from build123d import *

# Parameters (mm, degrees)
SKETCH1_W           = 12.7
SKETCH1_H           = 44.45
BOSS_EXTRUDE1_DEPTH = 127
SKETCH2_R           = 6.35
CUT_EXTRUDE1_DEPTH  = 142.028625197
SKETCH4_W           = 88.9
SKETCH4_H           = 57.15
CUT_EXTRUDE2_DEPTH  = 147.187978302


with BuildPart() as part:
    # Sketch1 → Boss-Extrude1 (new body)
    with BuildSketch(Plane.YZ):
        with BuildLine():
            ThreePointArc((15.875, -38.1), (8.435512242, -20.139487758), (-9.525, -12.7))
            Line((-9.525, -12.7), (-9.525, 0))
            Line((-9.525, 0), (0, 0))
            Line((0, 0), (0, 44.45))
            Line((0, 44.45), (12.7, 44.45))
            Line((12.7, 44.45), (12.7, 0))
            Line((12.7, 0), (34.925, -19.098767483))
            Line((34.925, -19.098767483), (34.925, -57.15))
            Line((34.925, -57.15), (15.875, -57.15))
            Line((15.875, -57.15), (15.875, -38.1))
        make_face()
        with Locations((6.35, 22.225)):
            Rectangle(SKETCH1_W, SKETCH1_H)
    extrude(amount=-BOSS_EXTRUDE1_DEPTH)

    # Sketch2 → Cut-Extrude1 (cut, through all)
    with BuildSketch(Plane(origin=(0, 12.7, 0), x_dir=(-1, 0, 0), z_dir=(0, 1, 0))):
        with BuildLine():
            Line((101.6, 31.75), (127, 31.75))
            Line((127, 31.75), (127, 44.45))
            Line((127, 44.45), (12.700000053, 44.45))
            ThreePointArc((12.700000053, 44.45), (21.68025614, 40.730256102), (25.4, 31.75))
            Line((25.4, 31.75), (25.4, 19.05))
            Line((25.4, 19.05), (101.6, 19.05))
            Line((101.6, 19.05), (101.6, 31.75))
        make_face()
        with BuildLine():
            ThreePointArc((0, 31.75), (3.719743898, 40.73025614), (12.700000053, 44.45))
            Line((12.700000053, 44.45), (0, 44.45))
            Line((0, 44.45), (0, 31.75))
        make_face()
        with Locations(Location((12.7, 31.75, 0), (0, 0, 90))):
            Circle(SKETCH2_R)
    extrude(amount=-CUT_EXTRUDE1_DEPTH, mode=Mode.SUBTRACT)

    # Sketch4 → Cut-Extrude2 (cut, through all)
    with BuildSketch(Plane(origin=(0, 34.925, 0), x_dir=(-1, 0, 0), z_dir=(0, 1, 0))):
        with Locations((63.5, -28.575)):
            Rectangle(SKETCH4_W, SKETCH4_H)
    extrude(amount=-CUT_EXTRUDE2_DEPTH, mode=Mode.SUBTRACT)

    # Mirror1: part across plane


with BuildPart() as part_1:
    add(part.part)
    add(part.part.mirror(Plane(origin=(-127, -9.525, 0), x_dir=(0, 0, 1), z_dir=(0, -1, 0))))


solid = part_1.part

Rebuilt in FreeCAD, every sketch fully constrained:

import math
import FreeCAD as App
import Part
import Sketcher
Q = App.Units.Quantity


def add_polygon(sketch, points):
    """Adds a closed chain of lines whose ends are joined by coincident constraints."""
    first, n = sketch.GeometryCount, len(points)
    for a, b in zip(points, points[1:] + points[:1]):
        sketch.addGeometry(Part.LineSegment(App.Vector(*a, 0), App.Vector(*b, 0)), False)
    for i in range(n):
        sketch.addConstraint(Sketcher.Constraint("Coincident", first + i, 2, first + (i + 1) % n, 1))

doc = App.newDocument("Part")
body = doc.addObject("PartDesign::Body", "Body")

sketch1 = body.newObject("Sketcher::SketchObject", "Sketch")
sketch1.AttachmentSupport = (doc.getObject("YZ_Plane"), [""])
sketch1.MapMode = "FlatFace"
sketch1.addGeometry([
    Part.LineSegment(App.Vector(15.875, -38.1, 0), App.Vector(15.875, -57.15, 0)),
    Part.LineSegment(App.Vector(15.875, -57.15, 0), App.Vector(34.925, -57.15, 0)),
    Part.LineSegment(App.Vector(34.925, -57.15, 0), App.Vector(34.925, -19.098767, 0)),
    Part.LineSegment(App.Vector(34.925, -19.098767, 0), App.Vector(12.7, 0, 0)),
    Part.LineSegment(App.Vector(12.7, 0, 0), App.Vector(12.7, 44.45, 0)),
    Part.LineSegment(App.Vector(12.7, 44.45, 0), App.Vector(0, 44.45, 0)),
    Part.LineSegment(App.Vector(0, 44.45, 0), App.Vector(0, 0, 0)),
    Part.LineSegment(App.Vector(0, 0, 0), App.Vector(-9.525, 0, 0)),
    Part.LineSegment(App.Vector(-9.525, 0, 0), App.Vector(-9.525, -12.7, 0)),
    Part.ArcOfCircle(Part.Circle(App.Vector(-9.525, -38.1, 0), App.Vector(0, 0, 1), 25.4), math.radians(0), math.radians(90)),
], False)
sketch1.addConstraint([
    Sketcher.Constraint("Coincident", 0, 2, 1, 1),
    Sketcher.Constraint("Coincident", 1, 2, 2, 1),
    Sketcher.Constraint("Coincident", 2, 2, 3, 1),
    Sketcher.Constraint("Coincident", 3, 2, 4, 1),
    Sketcher.Constraint("Coincident", 4, 2, 5, 1),
    Sketcher.Constraint("Coincident", 5, 2, 6, 1),
    Sketcher.Constraint("Coincident", 6, 2, 7, 1),
    Sketcher.Constraint("Coincident", 7, 2, 8, 1),
    Sketcher.Constraint("Coincident", 8, 2, 9, 2),
    Sketcher.Constraint("Tangent", 9, 1, 0, 1),
    Sketcher.Constraint("Vertical", 0),
    Sketcher.Constraint("Horizontal", 1),
    Sketcher.Constraint("Vertical", 2),
    Sketcher.Constraint("Vertical", 4),
    Sketcher.Constraint("Horizontal", 5),
    Sketcher.Constraint("Vertical", 6),
    Sketcher.Constraint("Horizontal", 7),
    Sketcher.Constraint("Vertical", 8),
    Sketcher.Constraint("Coincident", 6, 2, -1, 1),
    Sketcher.Constraint("PointOnObject", 3, 2, -1),
    Sketcher.Constraint("Vertical", 9, 3, 7, 2),
    Sketcher.Constraint("Equal", 1, 0),
    Sketcher.Constraint("Equal", 5, 8),
    Sketcher.Constraint("Radius", 9, Q("1 in")),
    Sketcher.Constraint("DistanceX", 5, 2, 5, 1, Q("0.5 in")),
    Sketcher.Constraint("DistanceY", 0, 2, 4, 2, Q("4 in")),
    Sketcher.Constraint("DistanceX", 1, 1, 1, 2, Q("0.75 in")),
    Sketcher.Constraint("DistanceX", 7, 2, 7, 1, Q("0.375 in")),
    Sketcher.Constraint("DistanceY", 2, 1, 2, 2, 38.051233),
])
pad1 = body.newObject("PartDesign::Pad", "Pad")
pad1.Profile = sketch1
pad1.Length = Q("5 in")
pad1.Reversed = True

sketch2 = body.newObject("Sketcher::SketchObject", "Sketch001")
sketch2.AttachmentSupport = (doc.getObject("XZ_Plane"), [""])
sketch2.MapMode = "FlatFace"
sketch2.AttachmentOffset = App.Placement(App.Vector(0, 0, -0.5 * 25.4), App.Rotation())
sketch2.addGeometry([
    Part.LineSegment(App.Vector(-101.6, 31.75, 0), App.Vector(-127, 31.75, 0)),
    Part.LineSegment(App.Vector(-127, 31.75, 0), App.Vector(-127, 44.45, 0)),
    Part.LineSegment(App.Vector(-127, 44.45, 0), App.Vector(-12.7, 44.45, 0)),
    Part.ArcOfCircle(Part.Circle(App.Vector(-12.7, 31.75, 0), App.Vector(0, 0, 1), 12.7), math.radians(90), math.radians(180)),
    Part.LineSegment(App.Vector(-25.4, 31.75, 0), App.Vector(-25.4, 19.05, 0)),
    Part.LineSegment(App.Vector(-25.4, 19.05, 0), App.Vector(-101.6, 19.05, 0)),
    Part.LineSegment(App.Vector(-101.6, 19.05, 0), App.Vector(-101.6, 31.75, 0)),
    Part.ArcOfCircle(Part.Circle(App.Vector(-12.7, 31.75, 0), App.Vector(0, 0, 1), 12.7), math.radians(0), math.radians(90)),
    Part.LineSegment(App.Vector(-12.7, 44.45, 0), App.Vector(0, 44.45, 0)),
    Part.LineSegment(App.Vector(0, 44.45, 0), App.Vector(0, 31.75, 0)),
    Part.Circle(App.Vector(-12.7, 31.75, 0), App.Vector(0, 0, 1), 6.35),
], False)
sketch2.addConstraint([
    Sketcher.Constraint("Coincident", 0, 2, 1, 1),
    Sketcher.Constraint("Coincident", 1, 2, 2, 1),
    Sketcher.Constraint("Tangent", 2, 2, 3, 1),
    Sketcher.Constraint("Tangent", 3, 2, 4, 1),
    Sketcher.Constraint("Coincident", 4, 2, 5, 1),
    Sketcher.Constraint("Coincident", 5, 2, 6, 1),
    Sketcher.Constraint("Coincident", 6, 2, 0, 1),
    Sketcher.Constraint("Tangent", 7, 2, 8, 1),
    Sketcher.Constraint("Coincident", 8, 2, 9, 1),
    Sketcher.Constraint("Tangent", 9, 2, 7, 1),
    Sketcher.Constraint("Horizontal", 0),
    Sketcher.Constraint("Vertical", 1),
    Sketcher.Constraint("Horizontal", 2),
    Sketcher.Constraint("Vertical", 4),
    Sketcher.Constraint("Horizontal", 5),
    Sketcher.Constraint("Vertical", 6),
    Sketcher.Constraint("Horizontal", 8),
    Sketcher.Constraint("Vertical", 9),
    Sketcher.Constraint("Coincident", 7, 3, 3, 3),
    Sketcher.Constraint("Coincident", 10, 3, 3, 3),
    Sketcher.Constraint("Equal", 3, 7),
    Sketcher.Constraint("PointOnObject", 8, 2, -2),
    Sketcher.Constraint("Horizontal", 10, 3, 0, 2),
    Sketcher.Constraint("Equal", 1, 4),
    Sketcher.Constraint("Diameter", 10, Q("0.5 in")),
    Sketcher.Constraint("Radius", 3, Q("0.5 in")),
    Sketcher.Constraint("DistanceX", 0, 2, 0, 1, Q("1 in")),
    Sketcher.Constraint("DistanceX", 5, 2, 5, 1, Q("3 in")),
    Sketcher.Constraint("DistanceY", -1, 1, 3, 3, Q("1.25 in")),
])
pocket1 = body.newObject("PartDesign::Pocket", "Pocket")
pocket1.Profile = sketch2
pocket1.Type = "ThroughAll"
pocket1.Reversed = True

sketch3 = body.newObject("Sketcher::SketchObject", "Sketch002")
sketch3.AttachmentSupport = (doc.getObject("XZ_Plane"), [""])
sketch3.MapMode = "FlatFace"
sketch3.AttachmentOffset = App.Placement(App.Vector(0, 0, -1.375 * 25.4), App.Rotation())
add_polygon(sketch3, [(-19.05, 0), (-19.05, -57.15), (-107.95, -57.15), (-107.95, 0)])
sketch3.addConstraint([
    Sketcher.Constraint("Vertical", 0),
    Sketcher.Constraint("Horizontal", 1),
    Sketcher.Constraint("Vertical", 2),
    Sketcher.Constraint("Horizontal", 3),
    Sketcher.Constraint("PointOnObject", 2, 2, -1),
    Sketcher.Constraint("DistanceX", 1, 2, 1, 1, Q("3.5 in")),
    Sketcher.Constraint("DistanceY", 0, 2, 0, 1, Q("2.25 in")),
    Sketcher.Constraint("DistanceX", 0, 2, -1, 1, Q("0.75 in")),
])
pocket2 = body.newObject("PartDesign::Pocket", "Pocket001")
pocket2.Profile = sketch3
pocket2.Type = "ThroughAll"
pocket2.Reversed = True
body2 = doc.addObject("PartDesign::Body", "Body001")
doc.recompute()

body2.BaseFeature = body
doc.recompute()

mirroring = doc.addObject("Part::Mirroring", "Mirroring")
mirroring.Source = body
mirroring.Base = App.Vector(-127, -9.525, 0)
mirroring.Normal = App.Vector(0, -1, 0)
body3 = doc.addObject("PartDesign::Body", "Body002")
body3.BaseFeature = mirroring
boolean = body2.newObject("PartDesign::Boolean", "Boolean")
boolean.Type = "Fuse"
boolean.addObjects([body3])
doc.recompute()
mirroring.Visibility = False

doc.recompute()
